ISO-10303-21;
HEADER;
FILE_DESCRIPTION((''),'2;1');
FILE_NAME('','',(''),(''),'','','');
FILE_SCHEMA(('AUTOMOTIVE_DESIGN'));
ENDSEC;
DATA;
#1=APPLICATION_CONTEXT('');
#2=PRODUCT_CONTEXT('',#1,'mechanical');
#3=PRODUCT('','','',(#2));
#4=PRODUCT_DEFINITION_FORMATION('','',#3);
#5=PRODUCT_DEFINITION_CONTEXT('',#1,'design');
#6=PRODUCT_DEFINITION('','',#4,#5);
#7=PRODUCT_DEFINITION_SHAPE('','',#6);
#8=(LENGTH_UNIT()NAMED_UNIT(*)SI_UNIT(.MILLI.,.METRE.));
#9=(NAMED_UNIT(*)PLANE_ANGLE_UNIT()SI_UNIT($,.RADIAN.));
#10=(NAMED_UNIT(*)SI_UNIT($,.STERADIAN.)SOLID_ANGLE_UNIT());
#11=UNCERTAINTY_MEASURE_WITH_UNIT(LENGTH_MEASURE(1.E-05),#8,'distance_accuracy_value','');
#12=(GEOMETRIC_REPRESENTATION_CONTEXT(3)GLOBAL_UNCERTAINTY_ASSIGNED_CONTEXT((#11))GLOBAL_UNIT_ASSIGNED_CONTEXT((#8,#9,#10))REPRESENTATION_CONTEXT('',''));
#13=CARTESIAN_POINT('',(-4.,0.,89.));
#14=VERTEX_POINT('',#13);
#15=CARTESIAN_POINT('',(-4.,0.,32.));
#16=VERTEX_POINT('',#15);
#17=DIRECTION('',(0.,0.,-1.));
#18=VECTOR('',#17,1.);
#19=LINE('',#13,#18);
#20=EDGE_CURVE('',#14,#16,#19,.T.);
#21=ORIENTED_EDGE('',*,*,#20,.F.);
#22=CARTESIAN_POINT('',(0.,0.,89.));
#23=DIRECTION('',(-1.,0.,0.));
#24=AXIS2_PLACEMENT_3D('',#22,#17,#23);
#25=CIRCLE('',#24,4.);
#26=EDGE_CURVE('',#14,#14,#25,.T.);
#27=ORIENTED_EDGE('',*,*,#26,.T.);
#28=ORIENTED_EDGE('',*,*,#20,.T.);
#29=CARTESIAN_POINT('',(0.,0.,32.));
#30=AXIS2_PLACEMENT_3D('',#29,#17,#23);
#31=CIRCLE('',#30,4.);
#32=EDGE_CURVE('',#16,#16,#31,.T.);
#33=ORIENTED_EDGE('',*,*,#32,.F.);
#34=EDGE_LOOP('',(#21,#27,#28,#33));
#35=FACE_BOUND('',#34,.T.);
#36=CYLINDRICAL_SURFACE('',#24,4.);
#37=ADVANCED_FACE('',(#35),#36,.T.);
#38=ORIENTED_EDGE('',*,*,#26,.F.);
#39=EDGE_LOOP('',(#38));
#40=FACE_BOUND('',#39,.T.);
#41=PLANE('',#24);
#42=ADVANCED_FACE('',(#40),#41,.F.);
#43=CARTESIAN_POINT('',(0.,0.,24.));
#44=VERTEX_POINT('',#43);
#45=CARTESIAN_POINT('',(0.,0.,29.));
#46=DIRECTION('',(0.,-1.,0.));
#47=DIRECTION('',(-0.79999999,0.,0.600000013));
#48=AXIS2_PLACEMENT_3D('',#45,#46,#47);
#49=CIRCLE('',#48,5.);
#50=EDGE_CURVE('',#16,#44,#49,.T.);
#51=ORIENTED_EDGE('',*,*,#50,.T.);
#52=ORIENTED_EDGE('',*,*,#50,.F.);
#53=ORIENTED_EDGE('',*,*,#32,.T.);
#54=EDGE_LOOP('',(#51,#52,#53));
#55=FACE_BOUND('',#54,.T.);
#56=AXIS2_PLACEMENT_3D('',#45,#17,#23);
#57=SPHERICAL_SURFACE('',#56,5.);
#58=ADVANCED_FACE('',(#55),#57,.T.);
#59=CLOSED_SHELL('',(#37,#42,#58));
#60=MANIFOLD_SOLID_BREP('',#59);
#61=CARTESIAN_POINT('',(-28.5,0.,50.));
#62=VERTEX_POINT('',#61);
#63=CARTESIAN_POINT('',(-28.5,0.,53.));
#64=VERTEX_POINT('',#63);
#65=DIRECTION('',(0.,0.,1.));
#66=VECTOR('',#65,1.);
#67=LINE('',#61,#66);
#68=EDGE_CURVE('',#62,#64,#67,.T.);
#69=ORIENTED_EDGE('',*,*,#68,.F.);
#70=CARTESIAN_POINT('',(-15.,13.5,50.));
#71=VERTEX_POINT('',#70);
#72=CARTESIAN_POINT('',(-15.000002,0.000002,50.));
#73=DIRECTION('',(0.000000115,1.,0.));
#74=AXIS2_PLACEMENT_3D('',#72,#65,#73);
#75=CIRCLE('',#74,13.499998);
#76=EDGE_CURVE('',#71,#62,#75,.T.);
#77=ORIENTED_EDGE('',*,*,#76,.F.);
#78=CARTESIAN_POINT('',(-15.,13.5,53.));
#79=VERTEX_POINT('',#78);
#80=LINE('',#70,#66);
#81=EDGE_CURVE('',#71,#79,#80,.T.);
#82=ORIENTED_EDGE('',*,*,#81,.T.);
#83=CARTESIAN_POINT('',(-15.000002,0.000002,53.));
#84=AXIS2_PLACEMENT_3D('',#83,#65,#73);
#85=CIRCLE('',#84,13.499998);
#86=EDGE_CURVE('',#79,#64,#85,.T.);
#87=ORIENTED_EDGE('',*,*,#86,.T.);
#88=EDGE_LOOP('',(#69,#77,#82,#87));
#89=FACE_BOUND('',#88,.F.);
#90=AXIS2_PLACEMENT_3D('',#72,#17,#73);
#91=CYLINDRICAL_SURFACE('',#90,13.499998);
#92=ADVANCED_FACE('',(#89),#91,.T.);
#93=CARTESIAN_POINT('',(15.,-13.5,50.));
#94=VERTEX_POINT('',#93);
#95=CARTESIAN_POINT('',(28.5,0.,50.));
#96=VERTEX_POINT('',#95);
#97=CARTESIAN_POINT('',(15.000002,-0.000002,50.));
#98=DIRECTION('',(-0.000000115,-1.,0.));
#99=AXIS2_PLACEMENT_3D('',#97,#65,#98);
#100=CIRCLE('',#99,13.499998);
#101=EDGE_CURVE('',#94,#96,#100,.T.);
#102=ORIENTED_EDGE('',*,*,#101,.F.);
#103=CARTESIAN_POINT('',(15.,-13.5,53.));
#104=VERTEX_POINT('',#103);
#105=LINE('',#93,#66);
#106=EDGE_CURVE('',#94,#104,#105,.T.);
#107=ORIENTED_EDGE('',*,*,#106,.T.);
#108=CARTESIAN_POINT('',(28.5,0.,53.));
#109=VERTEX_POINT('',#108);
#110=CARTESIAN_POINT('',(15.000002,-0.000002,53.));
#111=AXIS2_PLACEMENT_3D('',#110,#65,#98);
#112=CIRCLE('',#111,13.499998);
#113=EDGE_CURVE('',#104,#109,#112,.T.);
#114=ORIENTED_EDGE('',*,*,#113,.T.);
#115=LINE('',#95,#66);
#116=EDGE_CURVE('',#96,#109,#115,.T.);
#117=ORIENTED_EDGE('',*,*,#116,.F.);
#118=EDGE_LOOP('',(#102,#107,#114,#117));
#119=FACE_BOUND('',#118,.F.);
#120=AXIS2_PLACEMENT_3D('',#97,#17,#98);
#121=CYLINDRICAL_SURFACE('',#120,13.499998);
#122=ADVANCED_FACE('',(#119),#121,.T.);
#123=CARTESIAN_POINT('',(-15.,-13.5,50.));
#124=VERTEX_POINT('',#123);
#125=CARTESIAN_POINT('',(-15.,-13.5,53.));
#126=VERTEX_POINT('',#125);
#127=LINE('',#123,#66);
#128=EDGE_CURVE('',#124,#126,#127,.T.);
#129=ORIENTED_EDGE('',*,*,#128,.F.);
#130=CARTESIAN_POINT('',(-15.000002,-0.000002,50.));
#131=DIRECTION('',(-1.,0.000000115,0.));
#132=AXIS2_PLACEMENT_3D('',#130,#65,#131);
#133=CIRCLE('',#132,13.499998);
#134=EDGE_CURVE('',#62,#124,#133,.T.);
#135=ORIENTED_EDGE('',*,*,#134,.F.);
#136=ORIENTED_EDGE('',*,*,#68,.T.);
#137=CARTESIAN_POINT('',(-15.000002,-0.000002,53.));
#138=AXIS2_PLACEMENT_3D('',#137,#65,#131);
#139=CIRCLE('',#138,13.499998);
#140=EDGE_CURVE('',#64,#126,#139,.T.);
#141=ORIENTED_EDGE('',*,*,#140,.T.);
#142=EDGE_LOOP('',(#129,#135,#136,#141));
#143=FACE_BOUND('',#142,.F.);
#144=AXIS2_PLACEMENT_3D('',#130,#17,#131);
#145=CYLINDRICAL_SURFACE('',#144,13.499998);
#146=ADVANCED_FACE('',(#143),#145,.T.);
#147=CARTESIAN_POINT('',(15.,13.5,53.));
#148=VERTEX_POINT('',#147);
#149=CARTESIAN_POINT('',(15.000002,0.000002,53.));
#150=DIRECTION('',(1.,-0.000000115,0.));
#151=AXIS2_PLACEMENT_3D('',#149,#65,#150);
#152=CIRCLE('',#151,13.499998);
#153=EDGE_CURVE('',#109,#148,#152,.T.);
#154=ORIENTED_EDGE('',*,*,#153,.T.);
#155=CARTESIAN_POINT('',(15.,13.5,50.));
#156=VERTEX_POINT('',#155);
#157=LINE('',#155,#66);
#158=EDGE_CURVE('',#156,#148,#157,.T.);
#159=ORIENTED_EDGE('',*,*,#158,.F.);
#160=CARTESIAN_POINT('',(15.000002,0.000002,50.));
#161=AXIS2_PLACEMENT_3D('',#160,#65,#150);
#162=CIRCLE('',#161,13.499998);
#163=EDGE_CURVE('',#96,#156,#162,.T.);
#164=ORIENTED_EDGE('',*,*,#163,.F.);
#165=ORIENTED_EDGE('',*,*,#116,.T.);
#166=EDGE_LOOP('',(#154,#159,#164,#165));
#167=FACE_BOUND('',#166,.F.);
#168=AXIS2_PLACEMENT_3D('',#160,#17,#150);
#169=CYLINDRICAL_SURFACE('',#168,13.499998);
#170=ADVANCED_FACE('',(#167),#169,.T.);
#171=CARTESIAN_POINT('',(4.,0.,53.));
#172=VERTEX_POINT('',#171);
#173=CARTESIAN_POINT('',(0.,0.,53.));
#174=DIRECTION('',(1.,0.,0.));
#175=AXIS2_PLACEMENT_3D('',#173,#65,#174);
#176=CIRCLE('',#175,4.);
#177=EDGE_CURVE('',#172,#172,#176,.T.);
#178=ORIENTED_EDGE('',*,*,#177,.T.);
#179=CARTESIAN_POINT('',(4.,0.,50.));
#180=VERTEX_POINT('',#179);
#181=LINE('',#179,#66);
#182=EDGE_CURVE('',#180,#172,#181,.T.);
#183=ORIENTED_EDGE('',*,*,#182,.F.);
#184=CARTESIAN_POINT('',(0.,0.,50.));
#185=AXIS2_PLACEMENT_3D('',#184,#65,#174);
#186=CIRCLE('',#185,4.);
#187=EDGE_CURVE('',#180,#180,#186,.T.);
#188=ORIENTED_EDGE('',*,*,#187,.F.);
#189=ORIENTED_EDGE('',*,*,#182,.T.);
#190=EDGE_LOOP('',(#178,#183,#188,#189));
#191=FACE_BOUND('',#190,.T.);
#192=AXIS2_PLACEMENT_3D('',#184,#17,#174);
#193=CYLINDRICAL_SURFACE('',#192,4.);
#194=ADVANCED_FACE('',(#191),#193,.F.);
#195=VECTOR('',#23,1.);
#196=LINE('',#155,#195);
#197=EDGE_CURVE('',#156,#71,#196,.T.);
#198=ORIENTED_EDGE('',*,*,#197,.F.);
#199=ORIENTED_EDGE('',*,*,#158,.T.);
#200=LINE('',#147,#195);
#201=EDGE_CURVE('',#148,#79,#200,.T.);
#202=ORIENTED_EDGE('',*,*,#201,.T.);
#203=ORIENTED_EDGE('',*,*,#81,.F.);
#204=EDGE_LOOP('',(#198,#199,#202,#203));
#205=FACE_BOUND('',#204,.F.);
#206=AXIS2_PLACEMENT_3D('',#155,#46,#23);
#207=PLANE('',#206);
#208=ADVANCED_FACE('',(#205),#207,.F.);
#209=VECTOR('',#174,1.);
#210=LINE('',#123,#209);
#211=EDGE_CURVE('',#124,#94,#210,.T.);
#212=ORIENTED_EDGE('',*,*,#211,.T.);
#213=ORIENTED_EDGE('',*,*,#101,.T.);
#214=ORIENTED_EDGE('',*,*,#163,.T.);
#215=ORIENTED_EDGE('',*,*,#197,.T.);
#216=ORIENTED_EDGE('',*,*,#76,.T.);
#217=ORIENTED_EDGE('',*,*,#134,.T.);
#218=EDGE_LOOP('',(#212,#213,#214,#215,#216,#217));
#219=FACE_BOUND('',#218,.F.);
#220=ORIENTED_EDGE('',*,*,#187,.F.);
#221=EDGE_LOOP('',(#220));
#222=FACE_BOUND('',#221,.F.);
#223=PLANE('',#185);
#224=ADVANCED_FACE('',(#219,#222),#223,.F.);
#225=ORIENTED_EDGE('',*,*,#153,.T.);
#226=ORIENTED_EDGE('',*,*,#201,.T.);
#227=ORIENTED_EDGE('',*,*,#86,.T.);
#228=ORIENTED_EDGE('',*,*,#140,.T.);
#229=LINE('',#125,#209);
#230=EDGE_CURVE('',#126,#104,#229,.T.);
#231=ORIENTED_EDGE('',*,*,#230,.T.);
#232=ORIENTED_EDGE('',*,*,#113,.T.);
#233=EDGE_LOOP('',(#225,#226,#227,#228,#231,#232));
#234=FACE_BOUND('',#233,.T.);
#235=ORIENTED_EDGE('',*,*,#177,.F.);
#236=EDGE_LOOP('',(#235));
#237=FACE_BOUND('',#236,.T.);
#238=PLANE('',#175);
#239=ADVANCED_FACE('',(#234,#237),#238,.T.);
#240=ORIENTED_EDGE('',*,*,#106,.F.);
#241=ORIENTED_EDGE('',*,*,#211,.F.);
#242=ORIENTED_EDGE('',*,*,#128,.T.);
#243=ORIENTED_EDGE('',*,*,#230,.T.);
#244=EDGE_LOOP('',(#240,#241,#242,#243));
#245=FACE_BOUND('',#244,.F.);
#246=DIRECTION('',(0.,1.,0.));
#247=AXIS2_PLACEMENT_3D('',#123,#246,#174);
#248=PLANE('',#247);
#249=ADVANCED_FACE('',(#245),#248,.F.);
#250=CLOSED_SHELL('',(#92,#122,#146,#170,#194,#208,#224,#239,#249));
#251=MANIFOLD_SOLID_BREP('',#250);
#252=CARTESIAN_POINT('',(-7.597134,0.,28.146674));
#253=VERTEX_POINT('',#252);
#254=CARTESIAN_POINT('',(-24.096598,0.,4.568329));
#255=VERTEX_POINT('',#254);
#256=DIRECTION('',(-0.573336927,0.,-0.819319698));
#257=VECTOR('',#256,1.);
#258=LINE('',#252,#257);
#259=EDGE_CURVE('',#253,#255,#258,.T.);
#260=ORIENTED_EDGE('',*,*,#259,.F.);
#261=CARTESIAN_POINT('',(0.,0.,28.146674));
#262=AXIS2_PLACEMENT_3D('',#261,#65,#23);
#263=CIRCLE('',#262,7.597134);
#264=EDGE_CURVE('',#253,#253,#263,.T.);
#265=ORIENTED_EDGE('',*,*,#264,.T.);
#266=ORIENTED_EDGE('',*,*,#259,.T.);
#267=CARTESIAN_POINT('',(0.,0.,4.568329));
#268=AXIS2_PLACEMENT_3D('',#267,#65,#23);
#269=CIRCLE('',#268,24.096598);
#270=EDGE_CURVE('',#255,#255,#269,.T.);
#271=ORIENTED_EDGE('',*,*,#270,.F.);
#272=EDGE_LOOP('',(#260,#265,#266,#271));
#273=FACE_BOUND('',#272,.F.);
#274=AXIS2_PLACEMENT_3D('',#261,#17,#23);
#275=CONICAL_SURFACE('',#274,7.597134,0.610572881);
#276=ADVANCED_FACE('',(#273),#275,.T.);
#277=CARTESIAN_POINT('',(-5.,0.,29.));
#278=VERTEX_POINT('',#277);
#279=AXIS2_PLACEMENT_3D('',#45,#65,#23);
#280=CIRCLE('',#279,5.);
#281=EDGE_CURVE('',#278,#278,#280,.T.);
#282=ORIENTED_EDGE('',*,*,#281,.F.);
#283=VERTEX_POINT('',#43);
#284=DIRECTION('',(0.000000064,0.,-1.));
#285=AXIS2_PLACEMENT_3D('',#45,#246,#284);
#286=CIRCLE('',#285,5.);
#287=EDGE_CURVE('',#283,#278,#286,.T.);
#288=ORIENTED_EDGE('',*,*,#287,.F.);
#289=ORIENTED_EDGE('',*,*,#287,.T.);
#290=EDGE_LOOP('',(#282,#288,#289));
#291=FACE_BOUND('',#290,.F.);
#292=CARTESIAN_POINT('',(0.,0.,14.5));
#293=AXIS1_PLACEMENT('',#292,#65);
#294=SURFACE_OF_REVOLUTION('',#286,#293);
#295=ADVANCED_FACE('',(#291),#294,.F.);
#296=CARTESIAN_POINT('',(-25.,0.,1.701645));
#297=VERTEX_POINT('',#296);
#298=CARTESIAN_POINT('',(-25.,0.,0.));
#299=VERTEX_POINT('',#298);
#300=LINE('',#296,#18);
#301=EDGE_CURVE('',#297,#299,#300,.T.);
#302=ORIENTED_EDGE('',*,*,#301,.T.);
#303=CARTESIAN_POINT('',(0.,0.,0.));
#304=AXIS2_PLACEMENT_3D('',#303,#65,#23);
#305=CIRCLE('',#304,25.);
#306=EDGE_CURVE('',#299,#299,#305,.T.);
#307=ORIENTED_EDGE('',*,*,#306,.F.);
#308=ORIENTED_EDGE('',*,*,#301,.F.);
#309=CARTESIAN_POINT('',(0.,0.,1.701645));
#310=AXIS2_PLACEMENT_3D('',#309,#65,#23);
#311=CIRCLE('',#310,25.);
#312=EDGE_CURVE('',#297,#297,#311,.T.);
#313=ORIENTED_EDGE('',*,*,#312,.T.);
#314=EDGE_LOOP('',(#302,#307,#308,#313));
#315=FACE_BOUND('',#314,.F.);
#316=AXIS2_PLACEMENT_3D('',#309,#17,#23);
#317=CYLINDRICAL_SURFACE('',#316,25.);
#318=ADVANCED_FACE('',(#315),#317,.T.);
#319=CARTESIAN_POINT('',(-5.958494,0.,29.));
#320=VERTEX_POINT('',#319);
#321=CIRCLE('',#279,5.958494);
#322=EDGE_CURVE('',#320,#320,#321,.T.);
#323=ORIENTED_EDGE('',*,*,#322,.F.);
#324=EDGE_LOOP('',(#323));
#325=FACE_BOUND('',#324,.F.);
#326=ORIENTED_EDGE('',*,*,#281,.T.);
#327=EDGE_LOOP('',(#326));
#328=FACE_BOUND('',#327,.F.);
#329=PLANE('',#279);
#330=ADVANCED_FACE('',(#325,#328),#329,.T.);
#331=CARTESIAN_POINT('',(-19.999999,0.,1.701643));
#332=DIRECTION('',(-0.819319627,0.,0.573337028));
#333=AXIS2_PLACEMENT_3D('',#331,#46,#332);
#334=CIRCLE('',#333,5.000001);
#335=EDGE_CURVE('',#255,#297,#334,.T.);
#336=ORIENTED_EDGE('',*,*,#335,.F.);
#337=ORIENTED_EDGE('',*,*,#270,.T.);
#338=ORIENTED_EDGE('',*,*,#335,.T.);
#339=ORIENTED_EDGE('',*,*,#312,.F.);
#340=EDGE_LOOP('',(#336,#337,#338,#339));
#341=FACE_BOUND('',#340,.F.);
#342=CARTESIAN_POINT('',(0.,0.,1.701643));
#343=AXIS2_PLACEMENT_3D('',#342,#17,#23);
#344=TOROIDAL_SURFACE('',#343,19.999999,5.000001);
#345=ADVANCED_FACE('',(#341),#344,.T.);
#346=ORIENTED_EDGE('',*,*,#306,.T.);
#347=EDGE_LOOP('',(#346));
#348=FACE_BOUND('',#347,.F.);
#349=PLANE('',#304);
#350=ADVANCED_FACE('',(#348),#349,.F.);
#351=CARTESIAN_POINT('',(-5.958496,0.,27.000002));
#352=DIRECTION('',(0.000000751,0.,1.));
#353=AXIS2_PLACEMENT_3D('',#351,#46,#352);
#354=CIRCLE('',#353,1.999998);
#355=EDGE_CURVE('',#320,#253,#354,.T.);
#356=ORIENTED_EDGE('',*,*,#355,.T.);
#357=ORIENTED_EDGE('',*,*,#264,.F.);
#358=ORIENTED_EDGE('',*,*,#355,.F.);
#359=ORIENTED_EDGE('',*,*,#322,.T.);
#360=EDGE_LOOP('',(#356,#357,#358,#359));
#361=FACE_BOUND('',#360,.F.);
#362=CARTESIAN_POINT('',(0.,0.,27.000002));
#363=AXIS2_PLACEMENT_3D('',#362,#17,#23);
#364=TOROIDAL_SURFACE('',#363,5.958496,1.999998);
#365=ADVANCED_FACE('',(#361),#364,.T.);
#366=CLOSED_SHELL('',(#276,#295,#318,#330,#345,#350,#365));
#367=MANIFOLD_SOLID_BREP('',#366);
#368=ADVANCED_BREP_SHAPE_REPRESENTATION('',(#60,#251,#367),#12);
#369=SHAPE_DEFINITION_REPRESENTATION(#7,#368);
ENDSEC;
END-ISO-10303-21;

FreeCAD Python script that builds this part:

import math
import FreeCAD as App
import Part
import Sketcher
from FreeCAD import Vector
Q = App.Units.Quantity

doc = App.newDocument("Part")
body = doc.addObject("PartDesign::Body", "Body")

sketch1 = doc.addObject("Sketcher::SketchObject", "Sketch")
body.addObject(sketch1)
sketch1.AttachmentSupport = (doc.XZ_Plane, [""])
sketch1.MapMode = "FlatFace"
sketch1.addGeometry([
    Part.LineSegment(Vector(-25, 0, 0), Vector(0, 0, 0)),
    Part.LineSegment(Vector(0, 0, 0), Vector(0, 24, 0)),
    Part.ArcOfCircle(Part.Circle(Vector(0, 29, 0), Vector(0, 0, 1), 5), math.radians(180), math.radians(270)),
    Part.LineSegment(Vector(-5, 29, 0), Vector(-6, 29, 0)),
    Part.ArcOfCircle(Part.Circle(Vector(-6, 27, 0), Vector(0, 0, 1), 2), math.radians(90), math.radians(145)),
    Part.LineSegment(Vector(-7.6, 28.1, 0), Vector(-24.1, 4.6, 0)),
    Part.ArcOfCircle(Part.Circle(Vector(-20, 1.7, 0), Vector(0, 0, 1), 5), math.radians(145), math.radians(180)),
    Part.LineSegment(Vector(-25, 1.7, 0), Vector(-25, 0, 0)),
], False)
sketch1.addConstraint([
    Sketcher.Constraint("Coincident", 0, 2, 1, 1),
    Sketcher.Constraint("Coincident", 1, 2, 2, 2),
    Sketcher.Constraint("Coincident", 2, 1, 3, 1),
    Sketcher.Constraint("Tangent", 3, 2, 4, 1),
    Sketcher.Constraint("Tangent", 4, 2, 5, 1),
    Sketcher.Constraint("Tangent", 5, 2, 6, 1),
    Sketcher.Constraint("Tangent", 6, 2, 7, 1),
    Sketcher.Constraint("Coincident", 7, 2, 0, 1),
    Sketcher.Constraint("Horizontal", 0),
    Sketcher.Constraint("Vertical", 1),
    Sketcher.Constraint("Horizontal", 3),
    Sketcher.Constraint("Vertical", 7),
    Sketcher.Constraint("Coincident", 0, 2, -1, 1),
    Sketcher.Constraint("Equal", 2, 6),
    Sketcher.Constraint("PointOnObject", 2, 3, -2),
    Sketcher.Constraint("Radius", 2, Q("5 mm")),
    Sketcher.Constraint("Radius", 4, Q("1.999998 mm")),
    Sketcher.Constraint("DistanceX", 0, 1, 0, 2, Q("25 mm")),
    Sketcher.Constraint("DistanceY", 1, 1, 1, 2, Q("24 mm")),
    Sketcher.Constraint("DistanceY", -1, 1, 4, 3, Q("27.000002 mm")),
    Sketcher.Constraint("DistanceX", 5, 2, -1, 1, Q("24.096598 mm")),
    Sketcher.Constraint("DistanceX", 3, 2, 3, 1, Q("0.958494 mm")),
])
revolution = doc.addObject("PartDesign::Revolution", "Revolution")
body.addObject(revolution)
revolution.Profile = sketch1
revolution.ReferenceAxis = (sketch1, ["V_Axis"])
revolution.Angle = 360
body2 = doc.addObject("PartDesign::Body", "Body001")

sketch2 = doc.addObject("Sketcher::SketchObject", "Sketch001")
body2.addObject(sketch2)
sketch2.AttachmentSupport = (doc.getObject("XZ_Plane001"), [""])
sketch2.MapMode = "FlatFace"
sketch2.addGeometry([
    Part.LineSegment(Vector(-4, 89, 0), Vector(-4, 32, 0)),
    Part.ArcOfCircle(Part.Circle(Vector(0, 29, 0), Vector(0, 0, 1), 5), math.radians(143), math.radians(270)),
    Part.LineSegment(Vector(0, 24, 0), Vector(0, 89, 0)),
    Part.LineSegment(Vector(0, 89, 0), Vector(-4, 89, 0)),
], False)
sketch2.addConstraint([
    Sketcher.Constraint("Coincident", 0, 2, 1, 1),
    Sketcher.Constraint("Coincident", 1, 2, 2, 1),
    Sketcher.Constraint("Coincident", 2, 2, 3, 1),
    Sketcher.Constraint("Coincident", 3, 2, 0, 1),
    Sketcher.Constraint("Vertical", 0),
    Sketcher.Constraint("Vertical", 2),
    Sketcher.Constraint("Horizontal", 3),
    Sketcher.Constraint("PointOnObject", 1, 3, -2),
    Sketcher.Constraint("PointOnObject", 1, 2, -2),
    Sketcher.Constraint("Radius", 1, Q("5 mm")),
    Sketcher.Constraint("DistanceX", 3, 2, 3, 1, Q("4 mm")),
    Sketcher.Constraint("DistanceY", 0, 2, 0, 1, Q("57 mm")),
    Sketcher.Constraint("DistanceY", -1, 1, 1, 3, Q("29 mm")),
])
revolution2 = doc.addObject("PartDesign::Revolution", "Revolution001")
body2.addObject(revolution2)
revolution2.Profile = sketch2
revolution2.ReferenceAxis = (sketch2, ["V_Axis"])
revolution2.Angle = 360
body3 = doc.addObject("PartDesign::Body", "Body002")

sketch3 = doc.addObject("Sketcher::SketchObject", "Sketch002")
body3.addObject(sketch3)
sketch3.AttachmentSupport = (doc.getObject("XY_Plane002"), [""])
sketch3.MapMode = "FlatFace"
sketch3.AttachmentOffset = App.Placement(Vector(0, 0, 50), App.Rotation())
sketch3.addGeometry([
    Part.LineSegment(Vector(15, 13.5, 0), Vector(-15, 13.5, 0)),
    Part.ArcOfCircle(Part.Circle(Vector(-15, 0, 0), Vector(0, 0, 1), 13.5), math.radians(90), math.radians(180)),
    Part.ArcOfCircle(Part.Circle(Vector(-15, 0, 0), Vector(0, 0, 1), 13.5), math.radians(180), math.radians(270)),
    Part.LineSegment(Vector(-15, -13.5, 0), Vector(15, -13.5, 0)),
    Part.ArcOfCircle(Part.Circle(Vector(15, 0, 0), Vector(0, 0, 1), 13.5), math.radians(-90), math.radians(0)),
    Part.ArcOfCircle(Part.Circle(Vector(15, 0, 0), Vector(0, 0, 1), 13.5), math.radians(0), math.radians(90)),
    Part.Circle(Vector(0, 0, 0), Vector(0, 0, 1), 4),
], False)
sketch3.addConstraint([
    Sketcher.Constraint("Tangent", 0, 2, 1, 1),
    Sketcher.Constraint("Tangent", 1, 2, 2, 1),
    Sketcher.Constraint("Tangent", 2, 2, 3, 1),
    Sketcher.Constraint("Tangent", 3, 2, 4, 1),
    Sketcher.Constraint("Tangent", 4, 2, 5, 1),
    Sketcher.Constraint("Tangent", 5, 2, 0, 1),
    Sketcher.Constraint("Horizontal", 0),
    Sketcher.Constraint("Horizontal", 3),
    Sketcher.Constraint("Coincident", 6, 3, -1, 1),
    Sketcher.Constraint("Equal", 1, 2),
    Sketcher.Constraint("Equal", 2, 4),
    Sketcher.Constraint("Symmetric", 1, 3, 4, 3, -1, 1),
    Sketcher.Constraint("PointOnObject", 1, 2, -1),
    Sketcher.Constraint("PointOnObject", 4, 2, -1),
    Sketcher.Constraint("Diameter", 6, Q("8 mm")),
    Sketcher.Constraint("Radius", 1, Q("13.499998 mm")),
    Sketcher.Constraint("DistanceX", 0, 2, 0, 1, Q("30 mm")),
])
pad1 = doc.addObject("PartDesign::Pad", "Pad")
body3.addObject(pad1)
pad1.Profile = sketch3
pad1.Length = 3

doc.recompute()
